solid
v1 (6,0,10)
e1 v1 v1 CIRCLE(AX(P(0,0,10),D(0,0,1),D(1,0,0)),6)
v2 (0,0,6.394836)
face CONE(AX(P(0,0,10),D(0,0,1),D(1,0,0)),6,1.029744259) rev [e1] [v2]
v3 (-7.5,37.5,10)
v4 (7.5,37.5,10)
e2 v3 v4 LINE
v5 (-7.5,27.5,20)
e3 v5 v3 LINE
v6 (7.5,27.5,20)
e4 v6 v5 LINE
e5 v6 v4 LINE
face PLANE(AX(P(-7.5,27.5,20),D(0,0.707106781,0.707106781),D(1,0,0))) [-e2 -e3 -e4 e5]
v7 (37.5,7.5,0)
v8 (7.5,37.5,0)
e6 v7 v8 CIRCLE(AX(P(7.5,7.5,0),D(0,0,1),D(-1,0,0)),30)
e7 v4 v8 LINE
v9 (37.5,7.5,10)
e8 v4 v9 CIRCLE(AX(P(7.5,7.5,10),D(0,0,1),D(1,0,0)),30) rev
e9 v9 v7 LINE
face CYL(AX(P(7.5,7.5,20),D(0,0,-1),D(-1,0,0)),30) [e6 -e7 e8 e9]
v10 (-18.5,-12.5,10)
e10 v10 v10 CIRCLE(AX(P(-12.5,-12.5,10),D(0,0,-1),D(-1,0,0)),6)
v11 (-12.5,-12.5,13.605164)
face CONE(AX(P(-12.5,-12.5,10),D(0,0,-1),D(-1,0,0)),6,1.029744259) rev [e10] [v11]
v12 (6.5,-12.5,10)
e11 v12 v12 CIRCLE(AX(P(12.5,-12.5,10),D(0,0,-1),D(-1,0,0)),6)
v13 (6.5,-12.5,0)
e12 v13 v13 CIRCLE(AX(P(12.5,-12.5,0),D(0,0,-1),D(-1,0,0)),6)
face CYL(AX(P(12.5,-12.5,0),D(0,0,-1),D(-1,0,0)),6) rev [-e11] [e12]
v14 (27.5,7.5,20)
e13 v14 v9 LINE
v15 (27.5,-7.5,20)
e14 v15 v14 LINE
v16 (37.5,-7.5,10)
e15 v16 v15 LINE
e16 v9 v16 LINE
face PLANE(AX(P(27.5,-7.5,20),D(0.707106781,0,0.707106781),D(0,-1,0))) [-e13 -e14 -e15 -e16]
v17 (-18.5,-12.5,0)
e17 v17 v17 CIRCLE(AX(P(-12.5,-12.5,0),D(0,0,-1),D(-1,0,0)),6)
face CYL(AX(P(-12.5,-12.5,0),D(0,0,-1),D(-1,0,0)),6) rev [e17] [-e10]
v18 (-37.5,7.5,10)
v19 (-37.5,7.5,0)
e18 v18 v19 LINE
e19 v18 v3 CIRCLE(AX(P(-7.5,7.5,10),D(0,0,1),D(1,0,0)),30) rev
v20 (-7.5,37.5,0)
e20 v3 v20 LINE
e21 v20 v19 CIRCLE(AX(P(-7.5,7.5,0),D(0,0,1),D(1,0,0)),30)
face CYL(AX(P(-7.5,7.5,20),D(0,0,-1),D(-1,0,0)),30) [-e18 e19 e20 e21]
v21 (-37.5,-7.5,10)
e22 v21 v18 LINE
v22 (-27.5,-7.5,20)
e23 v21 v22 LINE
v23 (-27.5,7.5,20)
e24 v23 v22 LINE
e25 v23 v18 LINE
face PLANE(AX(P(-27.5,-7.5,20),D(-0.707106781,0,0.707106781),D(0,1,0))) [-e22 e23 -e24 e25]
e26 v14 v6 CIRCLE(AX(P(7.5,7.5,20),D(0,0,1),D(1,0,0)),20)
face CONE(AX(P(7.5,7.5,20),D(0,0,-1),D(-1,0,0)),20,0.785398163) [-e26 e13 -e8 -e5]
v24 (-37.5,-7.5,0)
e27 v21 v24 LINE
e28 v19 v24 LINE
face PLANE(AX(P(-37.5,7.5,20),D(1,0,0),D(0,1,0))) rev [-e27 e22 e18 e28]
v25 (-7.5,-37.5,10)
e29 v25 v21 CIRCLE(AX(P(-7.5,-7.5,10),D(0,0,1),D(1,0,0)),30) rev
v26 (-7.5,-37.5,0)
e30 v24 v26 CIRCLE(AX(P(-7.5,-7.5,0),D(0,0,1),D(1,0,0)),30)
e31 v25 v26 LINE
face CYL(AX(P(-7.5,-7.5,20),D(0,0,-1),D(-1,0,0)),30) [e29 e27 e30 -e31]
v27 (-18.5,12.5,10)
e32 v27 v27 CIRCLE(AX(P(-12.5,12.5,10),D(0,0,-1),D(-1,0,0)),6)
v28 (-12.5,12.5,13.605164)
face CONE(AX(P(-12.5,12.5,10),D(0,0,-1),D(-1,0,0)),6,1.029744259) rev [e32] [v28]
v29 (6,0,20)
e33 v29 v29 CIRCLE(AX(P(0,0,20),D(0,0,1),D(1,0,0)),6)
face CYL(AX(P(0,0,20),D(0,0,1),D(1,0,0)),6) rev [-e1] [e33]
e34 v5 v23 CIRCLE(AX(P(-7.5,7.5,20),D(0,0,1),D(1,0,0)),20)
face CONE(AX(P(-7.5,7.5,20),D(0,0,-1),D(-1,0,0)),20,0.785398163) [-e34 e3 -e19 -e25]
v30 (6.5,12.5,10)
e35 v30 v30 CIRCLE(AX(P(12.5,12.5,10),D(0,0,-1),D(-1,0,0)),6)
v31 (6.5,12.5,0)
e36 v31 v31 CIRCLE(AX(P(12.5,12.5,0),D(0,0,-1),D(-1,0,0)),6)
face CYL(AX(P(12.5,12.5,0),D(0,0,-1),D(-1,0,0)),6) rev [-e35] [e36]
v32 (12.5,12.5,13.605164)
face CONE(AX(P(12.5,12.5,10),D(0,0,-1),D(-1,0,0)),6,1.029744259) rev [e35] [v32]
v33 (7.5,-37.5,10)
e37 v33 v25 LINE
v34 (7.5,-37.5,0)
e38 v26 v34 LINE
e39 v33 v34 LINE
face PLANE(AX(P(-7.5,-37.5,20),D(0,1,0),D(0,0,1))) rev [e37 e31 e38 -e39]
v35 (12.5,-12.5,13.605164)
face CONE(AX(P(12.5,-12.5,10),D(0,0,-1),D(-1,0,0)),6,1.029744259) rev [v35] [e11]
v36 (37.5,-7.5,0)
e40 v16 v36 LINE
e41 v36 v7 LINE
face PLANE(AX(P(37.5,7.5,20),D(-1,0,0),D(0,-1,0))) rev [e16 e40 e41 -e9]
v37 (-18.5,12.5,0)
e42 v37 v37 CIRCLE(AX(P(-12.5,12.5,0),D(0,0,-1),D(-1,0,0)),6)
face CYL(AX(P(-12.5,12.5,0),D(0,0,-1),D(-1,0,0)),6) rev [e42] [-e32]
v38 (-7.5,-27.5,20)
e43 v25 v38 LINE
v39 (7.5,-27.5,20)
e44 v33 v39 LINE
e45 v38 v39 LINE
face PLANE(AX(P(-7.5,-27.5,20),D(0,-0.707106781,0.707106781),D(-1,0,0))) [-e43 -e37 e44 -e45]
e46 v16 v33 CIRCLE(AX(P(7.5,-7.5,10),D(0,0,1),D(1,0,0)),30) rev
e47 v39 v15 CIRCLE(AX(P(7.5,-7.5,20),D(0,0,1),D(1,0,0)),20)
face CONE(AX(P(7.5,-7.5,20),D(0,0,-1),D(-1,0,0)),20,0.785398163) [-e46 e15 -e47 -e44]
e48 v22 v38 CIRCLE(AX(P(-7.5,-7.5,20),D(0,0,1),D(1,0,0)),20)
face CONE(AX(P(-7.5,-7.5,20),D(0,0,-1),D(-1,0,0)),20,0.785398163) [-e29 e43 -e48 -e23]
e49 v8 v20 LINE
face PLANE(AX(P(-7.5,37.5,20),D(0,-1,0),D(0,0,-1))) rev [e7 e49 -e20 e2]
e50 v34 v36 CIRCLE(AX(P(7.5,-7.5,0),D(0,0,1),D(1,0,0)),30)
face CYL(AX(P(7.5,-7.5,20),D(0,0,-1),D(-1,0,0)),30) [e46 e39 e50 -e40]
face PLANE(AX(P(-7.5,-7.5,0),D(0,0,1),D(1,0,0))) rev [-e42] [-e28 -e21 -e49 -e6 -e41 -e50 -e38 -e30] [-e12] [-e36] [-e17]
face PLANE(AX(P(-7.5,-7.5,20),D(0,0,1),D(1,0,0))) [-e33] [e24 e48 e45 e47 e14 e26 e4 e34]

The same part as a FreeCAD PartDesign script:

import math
import FreeCAD as App
import Part
import Sketcher

V = App.Vector


def edges_at(feature, points):
    """Names of the edges that pass closest to the given points."""
    edges = feature.Shape.Edges
    near = lambda p: min(range(len(edges)), key=lambda i: edges[i].distToShape(Part.Vertex(*p))[0])
    return sorted({f"Edge{near(p) + 1}" for p in points})

doc = App.newDocument("Part")
body = doc.addObject("PartDesign::Body", "Body")

sketch1 = doc.addObject("Sketcher::SketchObject", "Sketch")
body.addObject(sketch1)
sketch1.AttachmentSupport = (doc.XY_Plane, [""])
sketch1.MapMode = "FlatFace"
sketch1.addGeometry(Part.LineSegment(V(8, 38, 0), V(-8, 38, 0)), False)
sketch1.addGeometry(Part.ArcOfCircle(Part.Circle(V(-8, 8, 0), V(0, 0, 1), 30), math.radians(90), math.radians(180)), False)
sketch1.addGeometry(Part.LineSegment(V(-38, 8, 0), V(-38, -8, 0)), False)
sketch1.addGeometry(Part.ArcOfCircle(Part.Circle(V(-8, -8, 0), V(0, 0, 1), 30), math.radians(180), math.radians(270)), False)
sketch1.addGeometry(Part.LineSegment(V(-8, -38, 0), V(8, -38, 0)), False)
sketch1.addGeometry(Part.ArcOfCircle(Part.Circle(V(8, -8, 0), V(0, 0, 1), 30), math.radians(-90), math.radians(0)), False)
sketch1.addGeometry(Part.LineSegment(V(38, -8, 0), V(38, 8, 0)), False)
sketch1.addGeometry(Part.ArcOfCircle(Part.Circle(V(8, 8, 0), V(0, 0, 1), 30), math.radians(0), math.radians(90)), False)
sketch1.addConstraint(Sketcher.Constraint("Tangent", 0, 2, 1, 1))
sketch1.addConstraint(Sketcher.Constraint("Tangent", 1, 2, 2, 1))
sketch1.addConstraint(Sketcher.Constraint("Tangent", 2, 2, 3, 1))
sketch1.addConstraint(Sketcher.Constraint("Tangent", 3, 2, 4, 1))
sketch1.addConstraint(Sketcher.Constraint("Tangent", 4, 2, 5, 1))
sketch1.addConstraint(Sketcher.Constraint("Tangent", 5, 2, 6, 1))
sketch1.addConstraint(Sketcher.Constraint("Tangent", 6, 2, 7, 1))
sketch1.addConstraint(Sketcher.Constraint("Tangent", 7, 2, 0, 1))
sketch1.addConstraint(Sketcher.Constraint("Horizontal", 0))
sketch1.addConstraint(Sketcher.Constraint("Vertical", 2))
sketch1.addConstraint(Sketcher.Constraint("Horizontal", 4))
sketch1.addConstraint(Sketcher.Constraint("Vertical", 6))
sketch1.addConstraint(Sketcher.Constraint("Equal", 1, 3))
sketch1.addConstraint(Sketcher.Constraint("Equal", 3, 5))
sketch1.addConstraint(Sketcher.Constraint("Equal", 5, 7))
sketch1.addConstraint(Sketcher.Constraint("Symmetric", 1, 3, 5, 3, -1, 1))
sketch1.addConstraint(Sketcher.Constraint("Equal", 4, 2))
sketch1.addConstraint(Sketcher.Constraint("Radius", 1, 30.0))
sketch1.addConstraint(Sketcher.Constraint("DistanceX", 0, 2, 0, 1, 15.0))
pad1 = doc.addObject("PartDesign::Pad", "Pad")
body.addObject(pad1)
pad1.Profile = sketch1
pad1.Length = 20
doc.recompute()

chamfer = doc.addObject("PartDesign::Chamfer", "Chamfer")
body.addObject(chamfer)
chamfer.Base = (pad1, edges_at(pad1, [
    (28.713, -28.713, 20),
    (37.5, 0, 20),
    (28.713, 28.713, 20),
    (0, 37.5, 20),
    (-28.713, 28.713, 20),
    (-37.5, 0, 20),
    (-28.713, -28.713, 20),
    (0, -37.5, 20),
]))
chamfer.Size = 10

sketch2 = doc.addObject("Sketcher::SketchObject", "Sketch001")
body.addObject(sketch2)
sketch2.AttachmentSupport = (doc.XY_Plane, [""])
sketch2.MapMode = "FlatFace"
sketch2.addGeometry(Part.Circle(V(12, 12, 0), V(0, 0, 1), 6), False)
sketch2.addGeometry(Part.Circle(V(12, -12, 0), V(0, 0, 1), 6), False)
sketch2.addGeometry(Part.Circle(V(-12, -12, 0), V(0, 0, 1), 6), False)
sketch2.addGeometry(Part.Circle(V(-12, 12, 0), V(0, 0, 1), 6), False)
sketch2.addConstraint(Sketcher.Constraint("Equal", 0, 1))
sketch2.addConstraint(Sketcher.Constraint("Equal", 1, 2))
sketch2.addConstraint(Sketcher.Constraint("Equal", 2, 3))
sketch2.addConstraint(Sketcher.Constraint("Symmetric", 0, 3, 2, 3, -1, 1))
sketch2.addConstraint(Sketcher.Constraint("Symmetric", 1, 3, 3, 3, -1, 1))
sketch2.addConstraint(Sketcher.Constraint("Symmetric", 1, 3, 2, 3, -2))
sketch2.addConstraint(Sketcher.Constraint("Diameter", 0, 12.0))
sketch2.addConstraint(Sketcher.Constraint("DistanceY", 1, 3, 0, 3, 25.0))
sketch2.addConstraint(Sketcher.Constraint("DistanceX", 2, 3, 1, 3, 25.0))
doc.recompute()
hole = doc.addObject("PartDesign::Hole", "Hole")
body.addObject(hole)
hole.Profile = sketch2
hole.ThreadType = "None"
hole.Diameter = 12
hole.DepthType = "Dimension"
hole.Depth = 10
hole.DrillPoint = "Angled"
hole.DrillPointAngle = 118
hole.Reversed = True

sketch3 = doc.addObject("Sketcher::SketchObject", "Sketch002")
body.addObject(sketch3)
sketch3.AttachmentSupport = (doc.XY_Plane, [""])
sketch3.MapMode = "FlatFace"
sketch3.AttachmentOffset = App.Placement(V(0, 0, 20), App.Rotation())
sketch3.addGeometry(Part.Circle(V(0, 0, 0), V(0, 0, 1), 6), False)
sketch3.addConstraint(Sketcher.Constraint("Coincident", 0, 3, -1, 1))
sketch3.addConstraint(Sketcher.Constraint("Diameter", 0, 12.0))
doc.recompute()
hole2 = doc.addObject("PartDesign::Hole", "Hole001")
body.addObject(hole2)
hole2.Profile = sketch3
hole2.ThreadType = "None"
hole2.Diameter = 12
hole2.DepthType = "Dimension"
hole2.Depth = 10
hole2.DrillPoint = "Angled"
hole2.DrillPointAngle = 118

doc.recompute()
